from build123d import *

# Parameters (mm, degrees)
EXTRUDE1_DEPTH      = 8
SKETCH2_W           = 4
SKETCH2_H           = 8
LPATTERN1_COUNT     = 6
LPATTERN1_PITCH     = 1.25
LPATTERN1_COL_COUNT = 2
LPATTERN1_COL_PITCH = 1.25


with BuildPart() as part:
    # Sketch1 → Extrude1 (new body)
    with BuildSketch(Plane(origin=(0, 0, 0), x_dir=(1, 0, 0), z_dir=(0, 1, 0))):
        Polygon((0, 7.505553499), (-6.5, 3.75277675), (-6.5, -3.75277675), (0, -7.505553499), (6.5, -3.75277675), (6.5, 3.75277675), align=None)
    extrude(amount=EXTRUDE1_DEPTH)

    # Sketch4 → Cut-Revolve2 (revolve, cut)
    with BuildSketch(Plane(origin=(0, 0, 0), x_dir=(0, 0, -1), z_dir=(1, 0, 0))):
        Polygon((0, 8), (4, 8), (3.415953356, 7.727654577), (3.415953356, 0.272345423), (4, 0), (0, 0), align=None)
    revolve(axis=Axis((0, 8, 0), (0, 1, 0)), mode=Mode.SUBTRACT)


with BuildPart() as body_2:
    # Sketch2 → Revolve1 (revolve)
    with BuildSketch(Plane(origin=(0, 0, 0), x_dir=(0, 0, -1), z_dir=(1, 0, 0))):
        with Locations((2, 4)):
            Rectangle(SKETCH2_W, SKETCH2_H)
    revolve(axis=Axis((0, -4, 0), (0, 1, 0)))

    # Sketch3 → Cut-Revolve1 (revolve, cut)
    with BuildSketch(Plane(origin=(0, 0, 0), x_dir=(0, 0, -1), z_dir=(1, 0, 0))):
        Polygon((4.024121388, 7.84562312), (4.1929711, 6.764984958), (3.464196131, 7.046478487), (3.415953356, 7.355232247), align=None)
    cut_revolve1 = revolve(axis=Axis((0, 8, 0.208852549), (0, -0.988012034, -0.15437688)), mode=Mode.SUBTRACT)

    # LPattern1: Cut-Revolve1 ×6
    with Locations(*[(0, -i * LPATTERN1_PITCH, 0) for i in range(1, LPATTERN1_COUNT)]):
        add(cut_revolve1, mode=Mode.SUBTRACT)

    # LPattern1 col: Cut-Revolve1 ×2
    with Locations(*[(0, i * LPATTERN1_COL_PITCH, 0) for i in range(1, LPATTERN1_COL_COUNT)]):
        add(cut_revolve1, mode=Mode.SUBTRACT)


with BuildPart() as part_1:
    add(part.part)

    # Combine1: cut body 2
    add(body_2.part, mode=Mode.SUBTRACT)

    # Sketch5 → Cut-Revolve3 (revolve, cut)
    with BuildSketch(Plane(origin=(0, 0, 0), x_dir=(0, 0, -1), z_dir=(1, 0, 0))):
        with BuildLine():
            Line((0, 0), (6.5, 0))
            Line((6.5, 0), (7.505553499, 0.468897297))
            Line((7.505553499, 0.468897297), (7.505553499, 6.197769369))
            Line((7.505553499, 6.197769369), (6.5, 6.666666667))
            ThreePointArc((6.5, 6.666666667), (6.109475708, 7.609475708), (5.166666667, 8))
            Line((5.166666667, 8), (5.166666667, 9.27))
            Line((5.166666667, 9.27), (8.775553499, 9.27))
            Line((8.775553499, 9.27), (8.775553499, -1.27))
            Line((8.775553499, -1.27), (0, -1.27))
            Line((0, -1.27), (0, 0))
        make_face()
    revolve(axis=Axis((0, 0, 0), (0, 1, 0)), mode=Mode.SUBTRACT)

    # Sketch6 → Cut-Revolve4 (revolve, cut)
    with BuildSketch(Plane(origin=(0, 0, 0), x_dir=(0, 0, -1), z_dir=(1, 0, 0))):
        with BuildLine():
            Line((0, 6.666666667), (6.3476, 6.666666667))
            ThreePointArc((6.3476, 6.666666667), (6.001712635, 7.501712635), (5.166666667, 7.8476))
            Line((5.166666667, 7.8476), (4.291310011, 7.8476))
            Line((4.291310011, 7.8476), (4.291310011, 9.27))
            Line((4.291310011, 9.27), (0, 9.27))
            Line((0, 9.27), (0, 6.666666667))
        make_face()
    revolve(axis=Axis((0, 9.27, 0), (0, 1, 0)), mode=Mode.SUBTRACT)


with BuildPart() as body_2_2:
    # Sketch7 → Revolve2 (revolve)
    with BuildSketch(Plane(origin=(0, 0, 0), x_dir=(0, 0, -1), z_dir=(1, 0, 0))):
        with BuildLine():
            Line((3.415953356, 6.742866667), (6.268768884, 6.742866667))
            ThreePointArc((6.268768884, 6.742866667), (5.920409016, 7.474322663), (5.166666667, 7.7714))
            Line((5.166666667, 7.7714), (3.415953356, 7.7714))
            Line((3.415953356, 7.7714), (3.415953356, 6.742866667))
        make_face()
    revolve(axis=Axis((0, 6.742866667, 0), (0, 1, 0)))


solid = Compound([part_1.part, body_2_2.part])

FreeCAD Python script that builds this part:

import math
import FreeCAD as App
import Part
import Sketcher
Q = App.Units.Quantity


def add_polygon(sketch, points):
    """Adds a closed chain of lines whose ends are joined by coincident constraints."""
    first, n = sketch.GeometryCount, len(points)
    for a, b in zip(points, points[1:] + points[:1]):
        sketch.addGeometry(Part.LineSegment(App.Vector(*a, 0), App.Vector(*b, 0)), False)
    for i in range(n):
        sketch.addConstraint(Sketcher.Constraint("Coincident", first + i, 2, first + (i + 1) % n, 1))

doc = App.newDocument("Part")
body = doc.addObject("PartDesign::Body", "Body")

sketch1 = doc.addObject("Sketcher::SketchObject", "Sketch")
body.addObject(sketch1)
sketch1.AttachmentSupport = (doc.XZ_Plane, [""])
sketch1.MapMode = "FlatFace"
add_polygon(sketch1, [(0, -7.505553), (-6.5, -3.752777), (-6.5, 3.752777), (0, 7.505553), (6.5, 3.752777), (6.5, -3.752777)])
sketch1.addConstraint([
    Sketcher.Constraint("Vertical", 1),
    Sketcher.Constraint("Vertical", 4),
    Sketcher.Constraint("Symmetric", 0, 2, 3, 2, -1, 1),
    Sketcher.Constraint("Symmetric", 2, 2, 5, 2, -1, 1),
    Sketcher.Constraint("PointOnObject", 2, 2, -2),
    Sketcher.Constraint("Parallel", 2, 5),
    Sketcher.Constraint("Horizontal", 1, 2, 3, 2),
    Sketcher.Constraint("Angle", 0, Q("150 deg")),
    Sketcher.Constraint("DistanceX", 1, 2, 3, 2, 13.0),
    Sketcher.Constraint("DistanceY", 1, 1, 1, 2, 7.505554),
])
pad1 = doc.addObject("PartDesign::Pad", "Pad")
body.addObject(pad1)
pad1.Profile = sketch1
pad1.Length = 8
pad1.Reversed = True

sketch2 = doc.addObject("Sketcher::SketchObject", "Sketch001")
body.addObject(sketch2)
sketch2.AttachmentSupport = (doc.YZ_Plane, [""])
sketch2.MapMode = "FlatFace"
add_polygon(sketch2, [(8, -4), (8, 0), (0, 0), (0, -4), (0.272345, -3.415953), (7.727655, -3.415953)])
sketch2.addConstraint([
    Sketcher.Constraint("Vertical", 0),
    Sketcher.Constraint("Horizontal", 1),
    Sketcher.Constraint("Vertical", 2),
    Sketcher.Constraint("Horizontal", 4),
    Sketcher.Constraint("Coincident", 1, 2, -1, 1),
    Sketcher.Constraint("Horizontal", 2, 2, 5, 2),
    Sketcher.Constraint("Equal", 3, 5),
    Sketcher.Constraint("DistanceX", 1, 2, 1, 1, 8.0),
    Sketcher.Constraint("DistanceY", 0, 1, 0, 2, 4.0),
    Sketcher.Constraint("Angle", 3, Q("65 deg")),
    Sketcher.Constraint("DistanceX", 4, 1, 4, 2, 7.455309),
])
groove = doc.addObject("PartDesign::Groove", "Groove")
body.addObject(groove)
groove.Profile = sketch2
groove.ReferenceAxis = (sketch2, ["H_Axis"])
groove.Angle = 360
body2 = doc.addObject("PartDesign::Body", "Body001")

sketch3 = doc.addObject("Sketcher::SketchObject", "Sketch002")
body2.addObject(sketch3)
sketch3.AttachmentSupport = (doc.getObject("YZ_Plane001"), [""])
sketch3.MapMode = "FlatFace"
add_polygon(sketch3, [(8, 0), (0, 0), (0, -4), (8, -4)])
sketch3.addConstraint([
    Sketcher.Constraint("Horizontal", 0),
    Sketcher.Constraint("Vertical", 1),
    Sketcher.Constraint("Horizontal", 2),
    Sketcher.Constraint("Vertical", 3),
    Sketcher.Constraint("Coincident", 0, 2, -1, 1),
    Sketcher.Constraint("DistanceX", 0, 2, 0, 1, 8.0),
    Sketcher.Constraint("DistanceY", 1, 2, 1, 1, 4.0),
])
revolution = doc.addObject("PartDesign::Revolution", "Revolution")
body2.addObject(revolution)
revolution.Profile = sketch3
revolution.ReferenceAxis = (sketch3, ["H_Axis"])
revolution.Angle = 360

sketch4 = doc.addObject("Sketcher::SketchObject", "Sketch003")
body2.addObject(sketch4)
sketch4.AttachmentSupport = (doc.getObject("YZ_Plane001"), [""])
sketch4.MapMode = "FlatFace"
add_polygon(sketch4, [(6.764985, -4.192971), (7.845623, -4.024121), (7.355232, -3.415953), (7.046478, -3.464196)])
sketch4.addGeometry(Part.LineSegment(App.Vector(7.203663, 0.084425, 0), App.Vector(6.123025, -0.084425, 0)), True)
sketch4.addConstraint([
    Sketcher.Constraint("Parallel", 0, 2),
    Sketcher.Constraint("Parallel", 2, 4),
    Sketcher.Constraint("Equal", 1, 3),
    Sketcher.Constraint("Equal", 0, 4),
    Sketcher.Constraint("Distance", 2, 0.3125),
    Sketcher.Constraint("DistanceX", 4, 2, 0, 2, 1.722599),
    Sketcher.Constraint("Distance", 0, 1.09375),
    Sketcher.Constraint("Distance", 1, 0.78125),
    Sketcher.Constraint("DistanceY", 0, 2, -1, 1, 4.024121),
    Sketcher.Constraint("DistanceX", -1, 1, 2, 2, 7.046478),
    Sketcher.Constraint("DistanceY", 3, 2, -1, 1, 4.192971),
    Sketcher.Constraint("DistanceY", 1, 2, 4, 1, 3.500378),
])
groove2 = doc.addObject("PartDesign::Groove", "Groove001")
body2.addObject(groove2)
groove2.Profile = sketch4
groove2.ReferenceAxis = (sketch4, ["Axis0"])
groove2.Angle = 360
doc.recompute()

linearpattern = doc.addObject("PartDesign::LinearPattern", "LinearPattern")
body2.addObject(linearpattern)
linearpattern.Originals = [groove2]
linearpattern.Direction = (doc.getObject("Y_Axis001"), [""])
linearpattern.Mode = "offset"
linearpattern.Offset = 1.25
linearpattern.Occurrences = 6
linearpattern.Reversed = True
body2.Tip = linearpattern
doc.recompute()

linearpattern2 = doc.addObject("PartDesign::LinearPattern", "LinearPattern001")
body2.addObject(linearpattern2)
linearpattern2.Originals = [groove2]
linearpattern2.Direction = (doc.getObject("Y_Axis001"), [""])
linearpattern2.Mode = "offset"
linearpattern2.Offset = 1.25
linearpattern2.Occurrences = 2
body2.Tip = linearpattern2
doc.recompute()

boolean = doc.addObject("PartDesign::Boolean", "Boolean")
body.addObject(boolean)
boolean.Type = "Cut"
boolean.addObjects([body2])

sketch5 = doc.addObject("Sketcher::SketchObject", "Sketch004")
body.addObject(sketch5)
sketch5.AttachmentSupport = (doc.YZ_Plane, [""])
sketch5.MapMode = "FlatFace"
sketch5.addGeometry([
    Part.LineSegment(App.Vector(0, -6.5, 0), App.Vector(0, 0, 0)),
    Part.LineSegment(App.Vector(0, 0, 0), App.Vector(-1.27, 0, 0)),
    Part.LineSegment(App.Vector(-1.27, 0, 0), App.Vector(-1.27, -8.775553, 0)),
    Part.LineSegment(App.Vector(-1.27, -8.775553, 0), App.Vector(9.27, -8.775553, 0)),
    Part.LineSegment(App.Vector(9.27, -8.775553, 0), App.Vector(9.27, -5.166667, 0)),
    Part.LineSegment(App.Vector(9.27, -5.166667, 0), App.Vector(8, -5.166667, 0)),
    Part.ArcOfCircle(Part.Circle(App.Vector(6.666667, -5.166667, 0), App.Vector(0, 0, 1), 1.333333), math.radians(-90), math.radians(0)),
    Part.LineSegment(App.Vector(6.666667, -6.5, 0), App.Vector(6.197769, -7.505553, 0)),
    Part.LineSegment(App.Vector(6.197769, -7.505553, 0), App.Vector(0.468897, -7.505553, 0)),
    Part.LineSegment(App.Vector(0.468897, -7.505553, 0), App.Vector(0, -6.5, 0)),
], False)
sketch5.addConstraint([
    Sketcher.Constraint("Coincident", 0, 2, 1, 1),
    Sketcher.Constraint("Coincident", 1, 2, 2, 1),
    Sketcher.Constraint("Coincident", 2, 2, 3, 1),
    Sketcher.Constraint("Coincident", 3, 2, 4, 1),
    Sketcher.Constraint("Coincident", 4, 2, 5, 1),
    Sketcher.Constraint("Coincident", 5, 2, 6, 2),
    Sketcher.Constraint("Coincident", 6, 1, 7, 1),
    Sketcher.Constraint("Coincident", 7, 2, 8, 1),
    Sketcher.Constraint("Coincident", 8, 2, 9, 1),
    Sketcher.Constraint("Coincident", 9, 2, 0, 1),
    Sketcher.Constraint("Vertical", 0),
    Sketcher.Constraint("Horizontal", 1),
    Sketcher.Constraint("Vertical", 2),
    Sketcher.Constraint("Horizontal", 3),
    Sketcher.Constraint("Vertical", 4),
    Sketcher.Constraint("Horizontal", 5),
    Sketcher.Constraint("Horizontal", 8),
    Sketcher.Constraint("Coincident", 0, 2, -1, 1),
    Sketcher.Constraint("Horizontal", 6, 3, 4, 2),
    Sketcher.Constraint("Horizontal", 6, 1, 9, 2),
    Sketcher.Constraint("Equal", 1, 5),
    Sketcher.Constraint("Equal", 7, 9),
    Sketcher.Constraint("Angle", 7, Q("-115 deg")),
    Sketcher.Constraint("DistanceY", 0, 1, 0, 2, 6.5),
    Sketcher.Constraint("DistanceX", -1, 1, 5, 2, 8.0),
    Sketcher.Constraint("DistanceX", 1, 2, 1, 1, 1.27),
    Sketcher.Constraint("DistanceY", 3, 2, 7, 2, 1.27),
    Sketcher.Constraint("Radius", 6, 1.333333),
    Sketcher.Constraint("DistanceX", 8, 2, 8, 1, 5.728872),
    Sketcher.Constraint("DistanceY", 2, 2, 2, 1, 8.775553),
])
groove3 = doc.addObject("PartDesign::Groove", "Groove002")
body.addObject(groove3)
groove3.Profile = sketch5
groove3.ReferenceAxis = (sketch5, ["H_Axis"])
groove3.Angle = 360

sketch6 = doc.addObject("Sketcher::SketchObject", "Sketch005")
body.addObject(sketch6)
sketch6.AttachmentSupport = (doc.YZ_Plane, [""])
sketch6.MapMode = "FlatFace"
sketch6.addGeometry([
    Part.LineSegment(App.Vector(6.666667, 0, 0), App.Vector(6.666667, -6.3476, 0)),
    Part.ArcOfCircle(Part.Circle(App.Vector(6.666667, -5.166667, 0), App.Vector(0, 0, 1), 1.180933), math.radians(-90), math.radians(0)),
    Part.LineSegment(App.Vector(7.8476, -5.166667, 0), App.Vector(7.8476, -4.29131, 0)),
    Part.LineSegment(App.Vector(7.8476, -4.29131, 0), App.Vector(9.27, -4.29131, 0)),
    Part.LineSegment(App.Vector(9.27, -4.29131, 0), App.Vector(9.27, 0, 0)),
    Part.LineSegment(App.Vector(9.27, 0, 0), App.Vector(6.666667, 0, 0)),
], False)
sketch6.addConstraint([
    Sketcher.Constraint("Coincident", 0, 2, 1, 1),
    Sketcher.Constraint("Tangent", 1, 2, 2, 1),
    Sketcher.Constraint("Coincident", 2, 2, 3, 1),
    Sketcher.Constraint("Coincident", 3, 2, 4, 1),
    Sketcher.Constraint("Coincident", 4, 2, 5, 1),
    Sketcher.Constraint("Coincident", 5, 2, 0, 1),
    Sketcher.Constraint("Vertical", 0),
    Sketcher.Constraint("Vertical", 2),
    Sketcher.Constraint("Horizontal", 3),
    Sketcher.Constraint("Vertical", 4),
    Sketcher.Constraint("Horizontal", 5),
    Sketcher.Constraint("PointOnObject", 4, 2, -1),
    Sketcher.Constraint("Vertical", 1, 3, 0, 2),
    Sketcher.Constraint("DistanceX", -1, 1, 3, 2, 9.27),
    Sketcher.Constraint("DistanceX", 3, 1, 3, 2, 1.4224),
    Sketcher.Constraint("DistanceY", 0, 2, 0, 1, 6.3476),
    Sketcher.Constraint("Radius", 1, 1.180933),
    Sketcher.Constraint("DistanceY", 4, 1, 4, 2, 4.29131),
])
groove4 = doc.addObject("PartDesign::Groove", "Groove003")
body.addObject(groove4)
groove4.Profile = sketch6
groove4.ReferenceAxis = (sketch6, ["H_Axis"])
groove4.Angle = 360
body3 = doc.addObject("PartDesign::Body", "Body002")

sketch7 = doc.addObject("Sketcher::SketchObject", "Sketch006")
body3.addObject(sketch7)
sketch7.AttachmentSupport = (doc.getObject("YZ_Plane002"), [""])
sketch7.MapMode = "FlatFace"
sketch7.addGeometry([
    Part.LineSegment(App.Vector(6.742867, -3.415953, 0), App.Vector(6.742867, -6.268769, 0)),
    Part.ArcOfCircle(Part.Circle(App.Vector(6.666667, -5.166667, 0), App.Vector(0, 0, 1), 1.104733), math.radians(-86.04483), math.radians(0)),
    Part.LineSegment(App.Vector(7.7714, -5.166667, 0), App.Vector(7.7714, -3.415953, 0)),
    Part.LineSegment(App.Vector(7.7714, -3.415953, 0), App.Vector(6.742867, -3.415953, 0)),
], False)
sketch7.addConstraint([
    Sketcher.Constraint("Coincident", 0, 2, 1, 1),
    Sketcher.Constraint("Tangent", 1, 2, 2, 1),
    Sketcher.Constraint("Coincident", 2, 2, 3, 1),
    Sketcher.Constraint("Coincident", 3, 2, 0, 1),
    Sketcher.Constraint("Vertical", 0),
    Sketcher.Constraint("Vertical", 2),
    Sketcher.Constraint("Horizontal", 3),
    Sketcher.Constraint("Radius", 1, 1.104733),
    Sketcher.Constraint("DistanceX", -1, 1, 1, 2, 7.7714),
    Sketcher.Constraint("DistanceX", 1, 3, 0, 2, 0.0762),
    Sketcher.Constraint("DistanceY", 0, 2, 0, 1, 2.852816),
    Sketcher.Constraint("DistanceY", 0, 2, -1, 1, 6.268769),
])
revolution2 = doc.addObject("PartDesign::Revolution", "Revolution001")
body3.addObject(revolution2)
revolution2.Profile = sketch7
revolution2.ReferenceAxis = (sketch7, ["H_Axis"])
revolution2.Angle = 360

doc.recompute()
